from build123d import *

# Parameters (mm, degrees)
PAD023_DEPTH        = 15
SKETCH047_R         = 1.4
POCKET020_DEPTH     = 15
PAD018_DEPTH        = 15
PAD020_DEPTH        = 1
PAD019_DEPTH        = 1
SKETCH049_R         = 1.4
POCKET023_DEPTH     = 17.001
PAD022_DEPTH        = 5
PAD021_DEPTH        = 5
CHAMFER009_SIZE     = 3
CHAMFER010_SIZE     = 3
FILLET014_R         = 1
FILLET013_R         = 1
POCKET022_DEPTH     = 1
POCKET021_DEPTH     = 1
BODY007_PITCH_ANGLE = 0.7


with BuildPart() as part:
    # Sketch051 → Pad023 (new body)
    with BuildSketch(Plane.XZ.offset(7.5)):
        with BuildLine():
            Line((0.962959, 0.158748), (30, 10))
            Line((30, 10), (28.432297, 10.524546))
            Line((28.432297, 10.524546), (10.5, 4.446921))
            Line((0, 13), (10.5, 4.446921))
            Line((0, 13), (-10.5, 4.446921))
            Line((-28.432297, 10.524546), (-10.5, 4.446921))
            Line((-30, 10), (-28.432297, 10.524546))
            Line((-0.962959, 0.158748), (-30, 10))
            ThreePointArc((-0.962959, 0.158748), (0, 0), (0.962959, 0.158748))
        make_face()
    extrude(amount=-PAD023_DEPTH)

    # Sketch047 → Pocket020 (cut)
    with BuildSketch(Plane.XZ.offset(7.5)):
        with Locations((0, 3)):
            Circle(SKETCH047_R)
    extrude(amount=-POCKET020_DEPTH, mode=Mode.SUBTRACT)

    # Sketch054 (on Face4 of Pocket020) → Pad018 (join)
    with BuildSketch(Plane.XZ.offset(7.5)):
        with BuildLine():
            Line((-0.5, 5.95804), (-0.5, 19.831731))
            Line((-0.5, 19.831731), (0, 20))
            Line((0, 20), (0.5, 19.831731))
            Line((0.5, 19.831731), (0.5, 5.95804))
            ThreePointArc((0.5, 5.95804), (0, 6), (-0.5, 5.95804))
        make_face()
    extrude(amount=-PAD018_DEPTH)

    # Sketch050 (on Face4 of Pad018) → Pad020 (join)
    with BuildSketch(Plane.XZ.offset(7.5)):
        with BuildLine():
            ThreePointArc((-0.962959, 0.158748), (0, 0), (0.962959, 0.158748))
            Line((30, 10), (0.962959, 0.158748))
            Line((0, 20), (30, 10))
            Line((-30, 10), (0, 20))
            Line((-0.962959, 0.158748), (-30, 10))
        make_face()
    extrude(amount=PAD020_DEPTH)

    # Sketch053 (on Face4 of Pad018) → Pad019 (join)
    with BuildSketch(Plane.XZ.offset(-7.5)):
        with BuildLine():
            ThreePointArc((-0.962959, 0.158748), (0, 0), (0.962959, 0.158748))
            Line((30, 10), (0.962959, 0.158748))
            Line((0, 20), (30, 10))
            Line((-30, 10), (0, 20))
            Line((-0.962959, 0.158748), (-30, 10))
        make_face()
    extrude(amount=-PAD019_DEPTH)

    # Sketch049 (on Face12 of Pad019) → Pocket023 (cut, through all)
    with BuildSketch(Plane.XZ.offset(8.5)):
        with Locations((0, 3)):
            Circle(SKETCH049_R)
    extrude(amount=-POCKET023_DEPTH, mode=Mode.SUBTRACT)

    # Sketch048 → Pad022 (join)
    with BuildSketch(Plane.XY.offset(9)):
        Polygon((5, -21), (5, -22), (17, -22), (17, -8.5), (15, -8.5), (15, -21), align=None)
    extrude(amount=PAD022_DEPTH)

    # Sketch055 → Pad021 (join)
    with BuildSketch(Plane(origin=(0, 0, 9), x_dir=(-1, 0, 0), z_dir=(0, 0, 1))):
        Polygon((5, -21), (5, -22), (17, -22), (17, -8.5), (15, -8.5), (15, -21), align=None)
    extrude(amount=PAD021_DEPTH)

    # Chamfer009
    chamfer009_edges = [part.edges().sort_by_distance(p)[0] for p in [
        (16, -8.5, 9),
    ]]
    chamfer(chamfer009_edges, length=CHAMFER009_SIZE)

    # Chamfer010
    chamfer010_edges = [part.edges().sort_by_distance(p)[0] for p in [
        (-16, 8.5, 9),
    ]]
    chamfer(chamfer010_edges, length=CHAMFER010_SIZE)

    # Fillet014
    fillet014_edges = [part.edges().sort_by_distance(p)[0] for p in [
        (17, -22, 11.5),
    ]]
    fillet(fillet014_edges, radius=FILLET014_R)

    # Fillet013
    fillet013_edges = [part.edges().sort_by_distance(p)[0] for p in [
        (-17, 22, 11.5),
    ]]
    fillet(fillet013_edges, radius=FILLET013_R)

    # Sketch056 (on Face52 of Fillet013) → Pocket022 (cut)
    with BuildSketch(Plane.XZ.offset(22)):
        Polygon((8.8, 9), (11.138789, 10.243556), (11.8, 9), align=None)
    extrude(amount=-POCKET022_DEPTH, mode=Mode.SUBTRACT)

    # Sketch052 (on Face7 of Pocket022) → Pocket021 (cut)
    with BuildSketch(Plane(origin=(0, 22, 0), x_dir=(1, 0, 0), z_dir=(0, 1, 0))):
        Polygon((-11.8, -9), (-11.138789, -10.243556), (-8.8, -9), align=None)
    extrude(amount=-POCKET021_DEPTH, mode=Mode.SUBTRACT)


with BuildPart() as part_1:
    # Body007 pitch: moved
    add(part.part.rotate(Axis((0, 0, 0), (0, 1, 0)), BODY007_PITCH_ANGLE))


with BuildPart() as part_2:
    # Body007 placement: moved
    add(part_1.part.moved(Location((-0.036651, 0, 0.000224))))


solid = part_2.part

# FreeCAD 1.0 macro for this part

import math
import FreeCAD as App
import Part
import Sketcher

V = App.Vector
Q = App.Units.Quantity


def edges_at(feature, points):
    """Names of the edges that pass closest to the given points."""
    edges = feature.Shape.Edges
    near = lambda p: min(range(len(edges)), key=lambda i: edges[i].distToShape(Part.Vertex(*p))[0])
    return sorted({f"Edge{near(p) + 1}" for p in points})

doc = App.newDocument("Part")
params = doc.addObject("Spreadsheet::Sheet", "Params")
for row, (alias, value) in enumerate([
    ("pad1_length", "15 mm"),
    ("sketch2_diameter", "2.8 mm"),
    ("pocket1_length", "15 mm"),
    ("pad2_length", "15 mm"),
    ("pad3_length", "1 mm"),
    ("pad4_length", "1 mm"),
    ("sketch6_diameter", "2.8 mm"),
    ("sketch7_width", "12 mm"),
    ("sketch7_width2", "2 mm"),
    ("sketch7_height", "1 mm"),
    ("sketch7_height2", "13.5 mm"),
    ("pad5_length", "5 mm"),
    ("sketch8_width", "12 mm"),
    ("sketch8_width2", "2 mm"),
    ("sketch8_height", "1 mm"),
    ("sketch8_height2", "13.5 mm"),
    ("pad6_length", "5 mm"),
    ("chamfer_size", "3 mm"),
    ("chamfer2_size", "3 mm"),
    ("fillet_radius", "1 mm"),
    ("fillet2_radius", "1 mm"),
    ("sketch9_width", "3 mm"),
    ("pocket3_length", "1 mm"),
    ("sketch10_width", "3 mm"),
    ("pocket4_length", "1 mm"),
], start=1):
    params.set(f"A{row}", alias)
    params.set(f"B{row}", "=" + value)
    params.setAlias(f"B{row}", alias)

body = doc.addObject("PartDesign::Body", "Body")

# Sketch on XZ plane
sketch1 = doc.addObject("Sketcher::SketchObject", "Sketch")
body.addObject(sketch1)
sketch1.AttachmentSupport = (doc.XZ_Plane, [""])
sketch1.MapMode = "FlatFace"
sketch1.AttachmentOffset = App.Placement(V(0, 0, 7.5), App.Rotation())
sketch1.addGeometry(Part.LineSegment(V(0.962959, 0.158748, 0), V(30, 10, 0)), False)
sketch1.addGeometry(Part.LineSegment(V(30, 10, 0), V(28.432297, 10.524546, 0)), False)
sketch1.addGeometry(Part.LineSegment(V(28.432297, 10.524546, 0), V(10.5, 4.446921, 0)), False)
sketch1.addGeometry(Part.LineSegment(V(10.5, 4.446921, 0), V(0, 13, 0)), False)
sketch1.addGeometry(Part.LineSegment(V(0, 13, 0), V(-10.5, 4.446921, 0)), False)
sketch1.addGeometry(Part.LineSegment(V(-10.5, 4.446921, 0), V(-28.432297, 10.524546, 0)), False)
sketch1.addGeometry(Part.LineSegment(V(-28.432297, 10.524546, 0), V(-30, 10, 0)), False)
sketch1.addGeometry(Part.LineSegment(V(-30, 10, 0), V(-0.962959, 0.158748, 0)), False)
sketch1.addGeometry(Part.ArcOfCircle(Part.Circle(V(0, 3.000009, 0), V(0, 0, 1), 3.000009), math.radians(-108.722524), math.radians(-71.277476)), False)
sketch1.addConstraint(Sketcher.Constraint("Coincident", 0, 2, 1, 1))
sketch1.addConstraint(Sketcher.Constraint("Coincident", 1, 2, 2, 1))
sketch1.addConstraint(Sketcher.Constraint("Coincident", 2, 2, 3, 1))
sketch1.addConstraint(Sketcher.Constraint("Coincident", 3, 2, 4, 1))
sketch1.addConstraint(Sketcher.Constraint("Coincident", 4, 2, 5, 1))
sketch1.addConstraint(Sketcher.Constraint("Coincident", 5, 2, 6, 1))
sketch1.addConstraint(Sketcher.Constraint("Coincident", 6, 2, 7, 1))
sketch1.addConstraint(Sketcher.Constraint("Coincident", 7, 2, 8, 1))
sketch1.addConstraint(Sketcher.Constraint("Coincident", 8, 2, 0, 1))
sketch1.addConstraint(Sketcher.Constraint("PointOnObject", 8, 3, -2))
sketch1.addConstraint(Sketcher.Constraint("PointOnObject", 3, 2, -2))
sketch1.addConstraint(Sketcher.Constraint("DistanceX", -1, 1, 0, 2, 30.0))
sketch1.addConstraint(Sketcher.Constraint("DistanceY", -1, 1, 0, 2, 10.0))
sketch1.addConstraint(Sketcher.Constraint("DistanceY", -1, 1, 3, 2, 13.0))
sketch1.addConstraint(Sketcher.Constraint("DistanceX", 6, 2, -1, 1, 30.0))
sketch1.addConstraint(Sketcher.Constraint("DistanceY", -1, 1, 6, 2, 10.0))
sketch1.addConstraint(Sketcher.Constraint("DistanceX", 4, 2, 2, 2, 21.0))
sketch1.addConstraint(Sketcher.Constraint("DistanceX", -1, 1, 2, 2, 10.5))
sketch1.addConstraint(Sketcher.Constraint("Radius", 8, 3.000009))
sketch1.addConstraint(Sketcher.Constraint("DistanceY", 7, 2, 5, 2, 10.365798))
sketch1.addConstraint(Sketcher.Constraint("Distance", 0, 30.659419))
sketch1.addConstraint(Sketcher.Constraint("Distance", 1, 1.653131))
sketch1.addConstraint(Sketcher.Constraint("Distance", 6, 1.653131))
sketch1.addConstraint(Sketcher.Constraint("Distance", 7, 30.659419))
sketch1.addConstraint(Sketcher.Constraint("DistanceY", -1, 1, 8, 3, 3.000009))
sketch1.addConstraint(Sketcher.Constraint("DistanceY", -1, 1, 2, 2, 4.446921))
sketch1.addConstraint(Sketcher.Constraint("DistanceY", -1, 1, 4, 2, 4.446921))
sketch1.addConstraint(Sketcher.Constraint("Distance", 2, 18.934223))
pad1 = doc.addObject("PartDesign::Pad", "Pad")
body.addObject(pad1)
pad1.Profile = sketch1
pad1.setExpression("Length", "Params.pad1_length")
pad1.Reversed = True

# Sketch on XZ plane
sketch2 = doc.addObject("Sketcher::SketchObject", "Sketch001")
body.addObject(sketch2)
sketch2.AttachmentSupport = (doc.XZ_Plane, [""])
sketch2.MapMode = "FlatFace"
sketch2.AttachmentOffset = App.Placement(V(0, 0, 7.5), App.Rotation())
sketch2.addGeometry(Part.Circle(V(0, 3, 0), V(0, 0, 1), 1.4), False)
sketch2.addConstraint(Sketcher.Constraint("PointOnObject", 0, 3, -2))
sketch2.addConstraint(Sketcher.Constraint("Diameter", 0, 2.8))
sketch2.addConstraint(Sketcher.Constraint("DistanceY", -1, 1, 0, 3, 3.0))
sketch2.setExpression("Constraints[1]", "Params.sketch2_diameter")
pocket1 = doc.addObject("PartDesign::Pocket", "Pocket")
body.addObject(pocket1)
pocket1.Profile = sketch2
pocket1.setExpression("Length", "Params.pocket1_length")

# Sketch on XZ plane
sketch3 = doc.addObject("Sketcher::SketchObject", "Sketch002")
body.addObject(sketch3)
sketch3.AttachmentSupport = (doc.XZ_Plane, [""])
sketch3.MapMode = "FlatFace"
sketch3.AttachmentOffset = App.Placement(V(0, 0, 7.5), App.Rotation())
sketch3.addGeometry(Part.LineSegment(V(-0.5, 19.8, 0), V(-0.5, 6, 0)), False)
sketch3.addGeometry(Part.ArcOfCircle(Part.Circle(V(0, 3, 0), V(0, 0, 1), 3), math.radians(80.41), math.radians(99.59)), False)
sketch3.addGeometry(Part.LineSegment(V(0.5, 6, 0), V(0.5, 19.8, 0)), False)
sketch3.addGeometry(Part.LineSegment(V(0.5, 19.8, 0), V(0, 20, 0)), False)
sketch3.addGeometry(Part.LineSegment(V(0, 20, 0), V(-0.5, 19.8, 0)), False)
sketch3.addConstraint(Sketcher.Constraint("Coincident", 0, 2, 1, 2))
sketch3.addConstraint(Sketcher.Constraint("Coincident", 1, 1, 2, 1))
sketch3.addConstraint(Sketcher.Constraint("Coincident", 2, 2, 3, 1))
sketch3.addConstraint(Sketcher.Constraint("Coincident", 3, 2, 4, 1))
sketch3.addConstraint(Sketcher.Constraint("Coincident", 4, 2, 0, 1))
sketch3.addConstraint(Sketcher.Constraint("Vertical", 0))
sketch3.addConstraint(Sketcher.Constraint("Vertical", 2))
sketch3.addConstraint(Sketcher.Constraint("Symmetric", 0, 2, 1, 1, -2))
sketch3.addConstraint(Sketcher.Constraint("PointOnObject", 3, 2, -2))
sketch3.addConstraint(Sketcher.Constraint("Horizontal", 2, 2, 4, 2))
sketch3.addConstraint(Sketcher.Constraint("DistanceY", -1, 1, 3, 2, 20.0))
sketch3.addConstraint(Sketcher.Constraint("DistanceX", 0, 2, 1, 1, 1.0))
sketch3.addConstraint(Sketcher.Constraint("Radius", 1, 3.000008))
sketch3.addConstraint(Sketcher.Constraint("DistanceY", 0, 2, 0, 1, 13.873691))
sketch3.addConstraint(Sketcher.Constraint("DistanceY", -1, 1, 0, 2, 5.95804))
pad2 = doc.addObject("PartDesign::Pad", "Pad001")
body.addObject(pad2)
pad2.Profile = sketch3
pad2.setExpression("Length", "Params.pad2_length")
pad2.Reversed = True

# Sketch on XZ plane
sketch4 = doc.addObject("Sketcher::SketchObject", "Sketch003")
body.addObject(sketch4)
sketch4.AttachmentSupport = (doc.XZ_Plane, [""])
sketch4.MapMode = "FlatFace"
sketch4.AttachmentOffset = App.Placement(V(0, 0, 7.5), App.Rotation())
sketch4.addGeometry(Part.ArcOfCircle(Part.Circle(V(0, 3, 0), V(0, 0, 1), 3), math.radians(-109), math.radians(-71)), False)
sketch4.addGeometry(Part.LineSegment(V(1, 0.2, 0), V(30, 10, 0)), False)
sketch4.addGeometry(Part.LineSegment(V(30, 10, 0), V(0, 20, 0)), False)
sketch4.addGeometry(Part.LineSegment(V(0, 20, 0), V(-30, 10, 0)), False)
sketch4.addGeometry(Part.LineSegment(V(-30, 10, 0), V(-1, 0.2, 0)), False)
sketch4.addConstraint(Sketcher.Constraint("Tangent", 0, 2, 1, 1))
sketch4.addConstraint(Sketcher.Constraint("Coincident", 1, 2, 2, 1))
sketch4.addConstraint(Sketcher.Constraint("Coincident", 2, 2, 3, 1))
sketch4.addConstraint(Sketcher.Constraint("Coincident", 3, 2, 4, 1))
sketch4.addConstraint(Sketcher.Constraint("Tangent", 4, 2, 0, 1))
sketch4.addConstraint(Sketcher.Constraint("Symmetric", 1, 2, 3, 2, -2))
sketch4.addConstraint(Sketcher.Constraint("PointOnObject", 0, 3, -2))
sketch4.addConstraint(Sketcher.Constraint("PointOnObject", 2, 2, -2))
sketch4.addConstraint(Sketcher.Constraint("DistanceX", -1, 1, 1, 2, 30.0))
sketch4.addConstraint(Sketcher.Constraint("DistanceY", -1, 1, 1, 2, 10.0))
sketch4.addConstraint(Sketcher.Constraint("DistanceY", -1, 1, 2, 2, 20.0))
sketch4.addConstraint(Sketcher.Constraint("Radius", 0, 3.000009))
sketch4.addConstraint(Sketcher.Constraint("Distance", 1, 30.659419))
pad3 = doc.addObject("PartDesign::Pad", "Pad002")
body.addObject(pad3)
pad3.Profile = sketch4
pad3.setExpression("Length", "Params.pad3_length")

# Sketch on XZ plane
sketch5 = doc.addObject("Sketcher::SketchObject", "Sketch004")
body.addObject(sketch5)
sketch5.AttachmentSupport = (doc.XZ_Plane, [""])
sketch5.MapMode = "FlatFace"
sketch5.AttachmentOffset = App.Placement(V(0, 0, -7.5), App.Rotation())
sketch5.addGeometry(Part.ArcOfCircle(Part.Circle(V(0, 3, 0), V(0, 0, 1), 3), math.radians(-109), math.radians(-71)), False)
sketch5.addGeometry(Part.LineSegment(V(1, 0.2, 0), V(30, 10, 0)), False)
sketch5.addGeometry(Part.LineSegment(V(30, 10, 0), V(0, 20, 0)), False)
sketch5.addGeometry(Part.LineSegment(V(0, 20, 0), V(-30, 10, 0)), False)
sketch5.addGeometry(Part.LineSegment(V(-30, 10, 0), V(-1, 0.2, 0)), False)
sketch5.addConstraint(Sketcher.Constraint("Tangent", 0, 2, 1, 1))
sketch5.addConstraint(Sketcher.Constraint("Coincident", 1, 2, 2, 1))
sketch5.addConstraint(Sketcher.Constraint("Coincident", 2, 2, 3, 1))
sketch5.addConstraint(Sketcher.Constraint("Coincident", 3, 2, 4, 1))
sketch5.addConstraint(Sketcher.Constraint("Tangent", 4, 2, 0, 1))
sketch5.addConstraint(Sketcher.Constraint("Symmetric", 1, 2, 3, 2, -2))
sketch5.addConstraint(Sketcher.Constraint("PointOnObject", 0, 3, -2))
sketch5.addConstraint(Sketcher.Constraint("PointOnObject", 2, 2, -2))
sketch5.addConstraint(Sketcher.Constraint("DistanceX", -1, 1, 1, 2, 30.0))
sketch5.addConstraint(Sketcher.Constraint("DistanceY", -1, 1, 1, 2, 10.0))
sketch5.addConstraint(Sketcher.Constraint("DistanceY", -1, 1, 2, 2, 20.0))
sketch5.addConstraint(Sketcher.Constraint("Radius", 0, 3.000009))
sketch5.addConstraint(Sketcher.Constraint("Distance", 1, 30.659419))
pad4 = doc.addObject("PartDesign::Pad", "Pad003")
body.addObject(pad4)
pad4.Profile = sketch5
pad4.setExpression("Length", "Params.pad4_length")
pad4.Reversed = True

# Sketch on XZ plane
sketch6 = doc.addObject("Sketcher::SketchObject", "Sketch005")
body.addObject(sketch6)
sketch6.AttachmentSupport = (doc.XZ_Plane, [""])
sketch6.MapMode = "FlatFace"
sketch6.AttachmentOffset = App.Placement(V(0, 0, 8.5), App.Rotation())
sketch6.addGeometry(Part.Circle(V(0, 3, 0), V(0, 0, 1), 1.4), False)
sketch6.addConstraint(Sketcher.Constraint("PointOnObject", 0, 3, -2))
sketch6.addConstraint(Sketcher.Constraint("Diameter", 0, 2.8))
sketch6.addConstraint(Sketcher.Constraint("DistanceY", -1, 1, 0, 3, 3.0))
sketch6.setExpression("Constraints[1]", "Params.sketch6_diameter")
pocket2 = doc.addObject("PartDesign::Pocket", "Pocket001")
body.addObject(pocket2)
pocket2.Profile = sketch6
pocket2.Type = "ThroughAll"

# Sketch on XY plane
sketch7 = doc.addObject("Sketcher::SketchObject", "Sketch006")
body.addObject(sketch7)
sketch7.AttachmentSupport = (doc.XY_Plane, [""])
sketch7.MapMode = "FlatFace"
sketch7.AttachmentOffset = App.Placement(V(0, 0, 9), App.Rotation())
sketch7.addGeometry(Part.LineSegment(V(5, -21, 0), V(5, -22, 0)), False)
sketch7.addGeometry(Part.LineSegment(V(5, -22, 0), V(17, -22, 0)), False)
sketch7.addGeometry(Part.LineSegment(V(17, -22, 0), V(17, -8.5, 0)), False)
sketch7.addGeometry(Part.LineSegment(V(17, -8.5, 0), V(15, -8.5, 0)), False)
sketch7.addGeometry(Part.LineSegment(V(15, -8.5, 0), V(15, -21, 0)), False)
sketch7.addGeometry(Part.LineSegment(V(15, -21, 0), V(5, -21, 0)), False)
sketch7.addConstraint(Sketcher.Constraint("Coincident", 0, 2, 1, 1))
sketch7.addConstraint(Sketcher.Constraint("Coincident", 1, 2, 2, 1))
sketch7.addConstraint(Sketcher.Constraint("Coincident", 2, 2, 3, 1))
sketch7.addConstraint(Sketcher.Constraint("Coincident", 3, 2, 4, 1))
sketch7.addConstraint(Sketcher.Constraint("Coincident", 4, 2, 5, 1))
sketch7.addConstraint(Sketcher.Constraint("Coincident", 5, 2, 0, 1))
sketch7.addConstraint(Sketcher.Constraint("Vertical", 0))
sketch7.addConstraint(Sketcher.Constraint("Horizontal", 1))
sketch7.addConstraint(Sketcher.Constraint("Vertical", 2))
sketch7.addConstraint(Sketcher.Constraint("Horizontal", 3))
sketch7.addConstraint(Sketcher.Constraint("Vertical", 4))
sketch7.addConstraint(Sketcher.Constraint("Horizontal", 5))
sketch7.addConstraint(Sketcher.Constraint("DistanceX", 1, 1, 1, 2, 12.0))
sketch7.addConstraint(Sketcher.Constraint("DistanceX", 3, 2, 3, 1, 2.0))
sketch7.addConstraint(Sketcher.Constraint("DistanceY", 0, 2, 0, 1, 1.0))
sketch7.addConstraint(Sketcher.Constraint("DistanceY", 2, 1, 2, 2, 13.5))
sketch7.addConstraint(Sketcher.Constraint("DistanceX", -1, 1, 0, 2, 5.0))
sketch7.addConstraint(Sketcher.Constraint("DistanceY", 0, 2, -1, 1, 22.0))
sketch7.setExpression("Constraints[12]", "Params.sketch7_width")
sketch7.setExpression("Constraints[13]", "Params.sketch7_width2")
sketch7.setExpression("Constraints[14]", "Params.sketch7_height")
sketch7.setExpression("Constraints[15]", "Params.sketch7_height2")
pad5 = doc.addObject("PartDesign::Pad", "Pad004")
body.addObject(pad5)
pad5.Profile = sketch7
pad5.setExpression("Length", "Params.pad5_length")

# Sketch on XY plane
sketch8 = doc.addObject("Sketcher::SketchObject", "Sketch007")
body.addObject(sketch8)
sketch8.AttachmentSupport = (doc.XY_Plane, [""])
sketch8.MapMode = "FlatFace"
sketch8.AttachmentOffset = App.Placement(V(0, 0, 9), App.Rotation())
sketch8.addGeometry(Part.LineSegment(V(-5, 21, 0), V(-5, 22, 0)), False)
sketch8.addGeometry(Part.LineSegment(V(-5, 22, 0), V(-17, 22, 0)), False)
sketch8.addGeometry(Part.LineSegment(V(-17, 22, 0), V(-17, 8.5, 0)), False)
sketch8.addGeometry(Part.LineSegment(V(-17, 8.5, 0), V(-15, 8.5, 0)), False)
sketch8.addGeometry(Part.LineSegment(V(-15, 8.5, 0), V(-15, 21, 0)), False)
sketch8.addGeometry(Part.LineSegment(V(-15, 21, 0), V(-5, 21, 0)), False)
sketch8.addConstraint(Sketcher.Constraint("Coincident", 0, 2, 1, 1))
sketch8.addConstraint(Sketcher.Constraint("Coincident", 1, 2, 2, 1))
sketch8.addConstraint(Sketcher.Constraint("Coincident", 2, 2, 3, 1))
sketch8.addConstraint(Sketcher.Constraint("Coincident", 3, 2, 4, 1))
sketch8.addConstraint(Sketcher.Constraint("Coincident", 4, 2, 5, 1))
sketch8.addConstraint(Sketcher.Constraint("Coincident", 5, 2, 0, 1))
sketch8.addConstraint(Sketcher.Constraint("Vertical", 0))
sketch8.addConstraint(Sketcher.Constraint("Horizontal", 1))
sketch8.addConstraint(Sketcher.Constraint("Vertical", 2))
sketch8.addConstraint(Sketcher.Constraint("Horizontal", 3))
sketch8.addConstraint(Sketcher.Constraint("Vertical", 4))
sketch8.addConstraint(Sketcher.Constraint("Horizontal", 5))
sketch8.addConstraint(Sketcher.Constraint("DistanceX", 1, 2, 1, 1, 12.0))
sketch8.addConstraint(Sketcher.Constraint("DistanceX", 3, 1, 3, 2, 2.0))
sketch8.addConstraint(Sketcher.Constraint("DistanceY", 0, 1, 0, 2, 1.0))
sketch8.addConstraint(Sketcher.Constraint("DistanceY", 2, 2, 2, 1, 13.5))
sketch8.addConstraint(Sketcher.Constraint("DistanceX", 0, 2, -1, 1, 5.0))
sketch8.addConstraint(Sketcher.Constraint("DistanceY", -1, 1, 0, 2, 22.0))
sketch8.setExpression("Constraints[12]", "Params.sketch8_width")
sketch8.setExpression("Constraints[13]", "Params.sketch8_width2")
sketch8.setExpression("Constraints[14]", "Params.sketch8_height")
sketch8.setExpression("Constraints[15]", "Params.sketch8_height2")
pad6 = doc.addObject("PartDesign::Pad", "Pad005")
body.addObject(pad6)
pad6.Profile = sketch8
pad6.setExpression("Length", "Params.pad6_length")
doc.recompute()

chamfer = doc.addObject("PartDesign::Chamfer", "Chamfer")
body.addObject(chamfer)
chamfer.Base = (pad6, edges_at(pad6, [(16, -8.5, 9)]))
chamfer.setExpression("Size", "Params.chamfer_size")
doc.recompute()

chamfer2 = doc.addObject("PartDesign::Chamfer", "Chamfer001")
body.addObject(chamfer2)
chamfer2.Base = (chamfer, edges_at(chamfer, [(-16, 8.5, 9)]))
chamfer2.setExpression("Size", "Params.chamfer2_size")
doc.recompute()

fillet = doc.addObject("PartDesign::Fillet", "Fillet")
body.addObject(fillet)
fillet.Base = (chamfer2, edges_at(chamfer2, [(17, -22, 11.5)]))
fillet.setExpression("Radius", "Params.fillet_radius")
doc.recompute()

fillet2 = doc.addObject("PartDesign::Fillet", "Fillet001")
body.addObject(fillet2)
fillet2.Base = (fillet, edges_at(fillet, [(-17, 22, 11.5)]))
fillet2.setExpression("Radius", "Params.fillet2_radius")

# Sketch on XZ plane
sketch9 = doc.addObject("Sketcher::SketchObject", "Sketch008")
body.addObject(sketch9)
sketch9.AttachmentSupport = (doc.XZ_Plane, [""])
sketch9.MapMode = "FlatFace"
sketch9.AttachmentOffset = App.Placement(V(0, 0, 22), App.Rotation())
sketch9.addGeometry(Part.LineSegment(V(11.1, 10.2, 0), V(8.8, 9, 0)), False)
sketch9.addGeometry(Part.LineSegment(V(8.8, 9, 0), V(11.8, 9, 0)), False)
sketch9.addGeometry(Part.LineSegment(V(11.8, 9, 0), V(11.1, 10.2, 0)), False)
sketch9.addConstraint(Sketcher.Constraint("Coincident", 0, 2, 1, 1))
sketch9.addConstraint(Sketcher.Constraint("Coincident", 1, 2, 2, 1))
sketch9.addConstraint(Sketcher.Constraint("Coincident", 2, 2, 0, 1))
sketch9.addConstraint(Sketcher.Constraint("Horizontal", 1))
sketch9.addConstraint(Sketcher.Constraint("Perpendicular", 0, 2))
sketch9.addConstraint(Sketcher.Constraint("DistanceX", 1, 1, 1, 2, 3.0))
sketch9.addConstraint(Sketcher.Constraint("Angle", 0, Q("-152.000003 deg")))
sketch9.addConstraint(Sketcher.Constraint("DistanceY", -1, 1, 0, 2, 9.0))
sketch9.addConstraint(Sketcher.Constraint("DistanceX", -1, 1, 0, 2, 8.8))
sketch9.setExpression("Constraints[5]", "Params.sketch9_width")
pocket3 = doc.addObject("PartDesign::Pocket", "Pocket002")
body.addObject(pocket3)
pocket3.Profile = sketch9
pocket3.setExpression("Length", "Params.pocket3_length")

# Sketch on XZ plane
sketch10 = doc.addObject("Sketcher::SketchObject", "Sketch009")
body.addObject(sketch10)
sketch10.AttachmentSupport = (doc.XZ_Plane, [""])
sketch10.MapMode = "FlatFace"
sketch10.AttachmentOffset = App.Placement(V(0, 0, -22), App.Rotation())
sketch10.addGeometry(Part.LineSegment(V(-11.8, 9, 0), V(-11.1, 10.2, 0)), False)
sketch10.addGeometry(Part.LineSegment(V(-11.1, 10.2, 0), V(-8.8, 9, 0)), False)
sketch10.addGeometry(Part.LineSegment(V(-8.8, 9, 0), V(-11.8, 9, 0)), False)
sketch10.addConstraint(Sketcher.Constraint("Coincident", 0, 2, 1, 1))
sketch10.addConstraint(Sketcher.Constraint("Coincident", 1, 2, 2, 1))
sketch10.addConstraint(Sketcher.Constraint("Coincident", 2, 2, 0, 1))
sketch10.addConstraint(Sketcher.Constraint("Horizontal", 2))
sketch10.addConstraint(Sketcher.Constraint("Perpendicular", 0, 1))
sketch10.addConstraint(Sketcher.Constraint("DistanceX", 2, 2, 2, 1, 3.0))
sketch10.addConstraint(Sketcher.Constraint("Angle", 0, Q("61.99998 deg")))
sketch10.addConstraint(Sketcher.Constraint("DistanceY", -1, 1, 1, 2, 9.0))
sketch10.addConstraint(Sketcher.Constraint("DistanceX", 1, 2, -1, 1, 8.8))
sketch10.setExpression("Constraints[5]", "Params.sketch10_width")
pocket4 = doc.addObject("PartDesign::Pocket", "Pocket003")
body.addObject(pocket4)
pocket4.Profile = sketch10
pocket4.setExpression("Length", "Params.pocket4_length")
pocket4.Reversed = True
body2 = doc.addObject("PartDesign::Body", "Body001")
doc.recompute()

body.Placement = App.Placement(V(0, 0, 0), App.Rotation(V(0, 1, 0), 0.7))
boolean = doc.addObject("PartDesign::Boolean", "Boolean")
body2.addObject(boolean)
boolean.Type = "Fuse"
boolean.addObjects([body])
body3 = doc.addObject("PartDesign::Body", "Body002")
doc.recompute()

body2.Placement = App.Placement(V(-0.036651, 0, 0.000224), App.Rotation(V(0, 0, 1), 0))
boolean2 = doc.addObject("PartDesign::Boolean", "Boolean001")
body3.addObject(boolean2)
boolean2.Type = "Fuse"
boolean2.addObjects([body2])

doc.recompute()
